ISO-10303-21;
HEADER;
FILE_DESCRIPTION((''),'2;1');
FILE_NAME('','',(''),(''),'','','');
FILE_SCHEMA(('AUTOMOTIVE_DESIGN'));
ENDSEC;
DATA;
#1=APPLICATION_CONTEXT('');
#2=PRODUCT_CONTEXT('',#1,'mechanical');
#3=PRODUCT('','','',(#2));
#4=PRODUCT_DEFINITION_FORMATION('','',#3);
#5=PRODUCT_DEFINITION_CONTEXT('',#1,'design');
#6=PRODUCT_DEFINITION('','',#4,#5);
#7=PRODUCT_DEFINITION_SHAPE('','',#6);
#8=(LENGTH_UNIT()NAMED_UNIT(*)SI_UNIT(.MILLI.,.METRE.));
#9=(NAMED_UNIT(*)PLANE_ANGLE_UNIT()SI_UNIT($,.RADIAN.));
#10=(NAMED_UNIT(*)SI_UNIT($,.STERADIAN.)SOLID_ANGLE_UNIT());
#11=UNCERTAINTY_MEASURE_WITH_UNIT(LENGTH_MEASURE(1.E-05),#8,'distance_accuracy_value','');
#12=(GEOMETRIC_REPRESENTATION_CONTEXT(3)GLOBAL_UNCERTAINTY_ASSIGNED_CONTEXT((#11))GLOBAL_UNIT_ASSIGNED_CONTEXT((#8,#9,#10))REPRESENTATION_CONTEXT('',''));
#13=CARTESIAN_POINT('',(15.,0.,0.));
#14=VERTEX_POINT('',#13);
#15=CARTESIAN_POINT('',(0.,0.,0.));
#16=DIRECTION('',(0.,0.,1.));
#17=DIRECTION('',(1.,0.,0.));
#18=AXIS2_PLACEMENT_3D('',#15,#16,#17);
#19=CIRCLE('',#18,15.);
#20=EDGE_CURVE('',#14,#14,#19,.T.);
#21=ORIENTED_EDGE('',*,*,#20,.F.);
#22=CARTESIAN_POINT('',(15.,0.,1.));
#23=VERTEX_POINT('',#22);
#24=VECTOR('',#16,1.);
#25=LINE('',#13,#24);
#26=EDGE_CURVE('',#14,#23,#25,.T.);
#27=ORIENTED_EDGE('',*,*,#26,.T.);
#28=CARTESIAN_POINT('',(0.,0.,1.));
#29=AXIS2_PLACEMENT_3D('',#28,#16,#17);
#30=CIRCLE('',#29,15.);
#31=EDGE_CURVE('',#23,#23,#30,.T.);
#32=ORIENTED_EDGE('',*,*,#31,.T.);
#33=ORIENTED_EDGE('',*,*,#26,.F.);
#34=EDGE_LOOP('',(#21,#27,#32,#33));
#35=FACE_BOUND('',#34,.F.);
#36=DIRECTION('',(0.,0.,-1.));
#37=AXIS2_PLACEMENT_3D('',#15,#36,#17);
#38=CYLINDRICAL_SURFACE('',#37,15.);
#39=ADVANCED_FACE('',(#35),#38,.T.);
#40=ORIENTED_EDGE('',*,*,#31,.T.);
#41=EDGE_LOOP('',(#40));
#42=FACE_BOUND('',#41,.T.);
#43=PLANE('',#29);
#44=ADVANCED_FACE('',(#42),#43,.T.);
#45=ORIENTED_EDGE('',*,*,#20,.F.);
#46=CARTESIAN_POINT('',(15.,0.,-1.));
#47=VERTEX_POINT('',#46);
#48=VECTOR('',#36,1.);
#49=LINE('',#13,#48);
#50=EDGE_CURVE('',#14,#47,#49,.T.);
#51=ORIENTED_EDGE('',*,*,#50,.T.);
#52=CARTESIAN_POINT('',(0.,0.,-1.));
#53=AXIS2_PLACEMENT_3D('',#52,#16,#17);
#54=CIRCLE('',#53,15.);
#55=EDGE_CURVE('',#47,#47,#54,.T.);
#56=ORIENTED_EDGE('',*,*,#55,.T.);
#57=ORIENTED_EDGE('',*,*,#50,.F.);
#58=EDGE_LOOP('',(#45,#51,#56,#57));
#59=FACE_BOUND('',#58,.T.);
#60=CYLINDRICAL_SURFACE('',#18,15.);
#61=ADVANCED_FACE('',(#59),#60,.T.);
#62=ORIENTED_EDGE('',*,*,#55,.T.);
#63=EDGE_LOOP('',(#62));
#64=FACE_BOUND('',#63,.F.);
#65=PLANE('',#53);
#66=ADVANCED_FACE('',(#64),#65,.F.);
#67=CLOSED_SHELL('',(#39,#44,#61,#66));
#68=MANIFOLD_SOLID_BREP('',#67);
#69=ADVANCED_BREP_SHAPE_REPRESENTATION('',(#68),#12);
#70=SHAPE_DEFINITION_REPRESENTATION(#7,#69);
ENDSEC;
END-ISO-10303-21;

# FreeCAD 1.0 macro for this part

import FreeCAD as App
import Part
import Sketcher

V = App.Vector
Q = App.Units.Quantity

doc = App.newDocument("Part")
body = doc.addObject("PartDesign::Body", "Body")

# Sketch on XY plane
sketch1 = doc.addObject("Sketcher::SketchObject", "Sketch")
body.addObject(sketch1)
sketch1.AttachmentSupport = (doc.XY_Plane, [""])
sketch1.MapMode = "FlatFace"
sketch1.addGeometry(Part.Circle(V(0, 0, 0), V(0, 0, 1), 15), False)
sketch1.addConstraint(Sketcher.Constraint("Coincident", 0, 3, -1, 1))
sketch1.addConstraint(Sketcher.Constraint("Diameter", 0, Q("30 mm")))
pad1 = doc.addObject("PartDesign::Pad", "Pad")
body.addObject(pad1)
pad1.Profile = sketch1
pad1.Length = 2
pad1.Midplane = True

doc.recompute()
